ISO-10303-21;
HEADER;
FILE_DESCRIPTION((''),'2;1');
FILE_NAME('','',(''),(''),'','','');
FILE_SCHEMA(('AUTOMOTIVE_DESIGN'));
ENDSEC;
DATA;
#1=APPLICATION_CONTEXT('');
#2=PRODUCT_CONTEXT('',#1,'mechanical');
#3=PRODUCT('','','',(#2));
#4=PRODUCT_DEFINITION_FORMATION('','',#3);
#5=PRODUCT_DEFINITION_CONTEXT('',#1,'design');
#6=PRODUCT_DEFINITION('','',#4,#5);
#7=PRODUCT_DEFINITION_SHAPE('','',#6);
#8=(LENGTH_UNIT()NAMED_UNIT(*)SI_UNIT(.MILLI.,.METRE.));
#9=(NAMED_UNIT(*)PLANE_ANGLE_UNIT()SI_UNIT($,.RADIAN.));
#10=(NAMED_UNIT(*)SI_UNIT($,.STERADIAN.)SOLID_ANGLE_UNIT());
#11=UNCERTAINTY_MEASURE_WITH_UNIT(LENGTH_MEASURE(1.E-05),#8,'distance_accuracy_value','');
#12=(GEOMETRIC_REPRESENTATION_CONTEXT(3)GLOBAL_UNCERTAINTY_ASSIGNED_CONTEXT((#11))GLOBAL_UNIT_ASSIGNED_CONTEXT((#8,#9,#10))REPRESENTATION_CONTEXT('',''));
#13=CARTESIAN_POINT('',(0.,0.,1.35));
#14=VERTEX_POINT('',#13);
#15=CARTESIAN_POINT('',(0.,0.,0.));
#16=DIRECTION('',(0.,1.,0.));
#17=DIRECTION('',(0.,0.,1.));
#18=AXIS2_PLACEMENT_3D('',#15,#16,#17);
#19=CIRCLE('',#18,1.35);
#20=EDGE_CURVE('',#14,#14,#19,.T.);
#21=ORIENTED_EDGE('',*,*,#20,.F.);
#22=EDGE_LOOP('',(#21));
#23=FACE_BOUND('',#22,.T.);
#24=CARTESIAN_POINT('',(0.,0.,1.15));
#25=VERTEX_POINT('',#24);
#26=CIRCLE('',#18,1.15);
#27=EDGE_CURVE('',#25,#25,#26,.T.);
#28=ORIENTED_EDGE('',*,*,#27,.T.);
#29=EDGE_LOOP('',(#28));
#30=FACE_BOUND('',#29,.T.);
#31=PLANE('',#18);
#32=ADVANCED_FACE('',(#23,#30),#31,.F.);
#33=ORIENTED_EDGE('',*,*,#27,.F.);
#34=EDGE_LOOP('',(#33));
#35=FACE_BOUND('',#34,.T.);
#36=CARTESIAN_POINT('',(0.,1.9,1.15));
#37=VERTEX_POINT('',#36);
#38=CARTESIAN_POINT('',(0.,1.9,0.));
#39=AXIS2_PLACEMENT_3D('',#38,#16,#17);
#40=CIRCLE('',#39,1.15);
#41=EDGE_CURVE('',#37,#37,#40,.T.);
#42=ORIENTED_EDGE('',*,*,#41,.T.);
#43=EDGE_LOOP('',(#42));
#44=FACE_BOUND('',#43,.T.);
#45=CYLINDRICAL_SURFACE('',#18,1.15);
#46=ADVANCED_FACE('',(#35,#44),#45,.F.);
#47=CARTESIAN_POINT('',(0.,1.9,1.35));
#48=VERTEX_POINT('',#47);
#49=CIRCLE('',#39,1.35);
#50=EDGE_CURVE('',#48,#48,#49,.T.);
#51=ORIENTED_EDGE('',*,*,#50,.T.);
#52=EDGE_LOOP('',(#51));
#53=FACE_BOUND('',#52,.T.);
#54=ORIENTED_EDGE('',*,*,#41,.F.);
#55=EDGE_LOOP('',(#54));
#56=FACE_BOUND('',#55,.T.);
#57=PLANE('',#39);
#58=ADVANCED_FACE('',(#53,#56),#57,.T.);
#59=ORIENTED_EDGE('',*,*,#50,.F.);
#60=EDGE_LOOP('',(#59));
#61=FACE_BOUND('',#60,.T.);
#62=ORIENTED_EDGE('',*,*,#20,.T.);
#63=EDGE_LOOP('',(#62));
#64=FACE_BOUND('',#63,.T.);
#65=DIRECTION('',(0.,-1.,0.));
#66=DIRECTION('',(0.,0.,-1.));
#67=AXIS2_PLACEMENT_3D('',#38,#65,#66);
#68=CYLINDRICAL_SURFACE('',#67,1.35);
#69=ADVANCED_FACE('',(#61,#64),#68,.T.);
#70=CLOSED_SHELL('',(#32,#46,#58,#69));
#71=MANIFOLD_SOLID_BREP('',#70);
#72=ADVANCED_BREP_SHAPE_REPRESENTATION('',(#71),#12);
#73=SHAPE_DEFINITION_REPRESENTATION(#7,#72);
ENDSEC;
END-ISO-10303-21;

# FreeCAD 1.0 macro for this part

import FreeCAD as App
import Part
import Sketcher
from FreeCAD import Vector

doc = App.newDocument("Part")
body = doc.addObject("PartDesign::Body", "Body")

# Sketch on XZ plane
sketch1 = doc.addObject("Sketcher::SketchObject", "Sketch")
body.addObject(sketch1)
sketch1.AttachmentSupport = (doc.XZ_Plane, [""])
sketch1.MapMode = "FlatFace"
sketch1.addGeometry(Part.Circle(Vector(0, 0, 0), Vector(0, 0, 1), 1.35), False)
sketch1.addConstraint([
    Sketcher.Constraint("Coincident", 0, 3, -1, 1),
    Sketcher.Constraint("Diameter", 0, 2.7),
])
pad1 = doc.addObject("PartDesign::Pad", "Pad")
body.addObject(pad1)
pad1.Profile = sketch1
pad1.Length = 1.9
pad1.Reversed = True

# Sketch on XZ plane
sketch2 = doc.addObject("Sketcher::SketchObject", "Sketch001")
body.addObject(sketch2)
sketch2.AttachmentSupport = (doc.XZ_Plane, [""])
sketch2.MapMode = "FlatFace"
sketch2.AttachmentOffset = App.Placement(Vector(0, 0, -1.9), App.Rotation())
sketch2.addGeometry(Part.Circle(Vector(0, 0, 0), Vector(0, 0, 1), 1.15), False)
sketch2.addConstraint([
    Sketcher.Constraint("Coincident", 0, 3, -1, 1),
    Sketcher.Constraint("Diameter", 0, 2.3),
])
pocket1 = doc.addObject("PartDesign::Pocket", "Pocket")
body.addObject(pocket1)
pocket1.Profile = sketch2
pocket1.Type = "ThroughAll"
pocket1.Reversed = True

doc.recompute()
